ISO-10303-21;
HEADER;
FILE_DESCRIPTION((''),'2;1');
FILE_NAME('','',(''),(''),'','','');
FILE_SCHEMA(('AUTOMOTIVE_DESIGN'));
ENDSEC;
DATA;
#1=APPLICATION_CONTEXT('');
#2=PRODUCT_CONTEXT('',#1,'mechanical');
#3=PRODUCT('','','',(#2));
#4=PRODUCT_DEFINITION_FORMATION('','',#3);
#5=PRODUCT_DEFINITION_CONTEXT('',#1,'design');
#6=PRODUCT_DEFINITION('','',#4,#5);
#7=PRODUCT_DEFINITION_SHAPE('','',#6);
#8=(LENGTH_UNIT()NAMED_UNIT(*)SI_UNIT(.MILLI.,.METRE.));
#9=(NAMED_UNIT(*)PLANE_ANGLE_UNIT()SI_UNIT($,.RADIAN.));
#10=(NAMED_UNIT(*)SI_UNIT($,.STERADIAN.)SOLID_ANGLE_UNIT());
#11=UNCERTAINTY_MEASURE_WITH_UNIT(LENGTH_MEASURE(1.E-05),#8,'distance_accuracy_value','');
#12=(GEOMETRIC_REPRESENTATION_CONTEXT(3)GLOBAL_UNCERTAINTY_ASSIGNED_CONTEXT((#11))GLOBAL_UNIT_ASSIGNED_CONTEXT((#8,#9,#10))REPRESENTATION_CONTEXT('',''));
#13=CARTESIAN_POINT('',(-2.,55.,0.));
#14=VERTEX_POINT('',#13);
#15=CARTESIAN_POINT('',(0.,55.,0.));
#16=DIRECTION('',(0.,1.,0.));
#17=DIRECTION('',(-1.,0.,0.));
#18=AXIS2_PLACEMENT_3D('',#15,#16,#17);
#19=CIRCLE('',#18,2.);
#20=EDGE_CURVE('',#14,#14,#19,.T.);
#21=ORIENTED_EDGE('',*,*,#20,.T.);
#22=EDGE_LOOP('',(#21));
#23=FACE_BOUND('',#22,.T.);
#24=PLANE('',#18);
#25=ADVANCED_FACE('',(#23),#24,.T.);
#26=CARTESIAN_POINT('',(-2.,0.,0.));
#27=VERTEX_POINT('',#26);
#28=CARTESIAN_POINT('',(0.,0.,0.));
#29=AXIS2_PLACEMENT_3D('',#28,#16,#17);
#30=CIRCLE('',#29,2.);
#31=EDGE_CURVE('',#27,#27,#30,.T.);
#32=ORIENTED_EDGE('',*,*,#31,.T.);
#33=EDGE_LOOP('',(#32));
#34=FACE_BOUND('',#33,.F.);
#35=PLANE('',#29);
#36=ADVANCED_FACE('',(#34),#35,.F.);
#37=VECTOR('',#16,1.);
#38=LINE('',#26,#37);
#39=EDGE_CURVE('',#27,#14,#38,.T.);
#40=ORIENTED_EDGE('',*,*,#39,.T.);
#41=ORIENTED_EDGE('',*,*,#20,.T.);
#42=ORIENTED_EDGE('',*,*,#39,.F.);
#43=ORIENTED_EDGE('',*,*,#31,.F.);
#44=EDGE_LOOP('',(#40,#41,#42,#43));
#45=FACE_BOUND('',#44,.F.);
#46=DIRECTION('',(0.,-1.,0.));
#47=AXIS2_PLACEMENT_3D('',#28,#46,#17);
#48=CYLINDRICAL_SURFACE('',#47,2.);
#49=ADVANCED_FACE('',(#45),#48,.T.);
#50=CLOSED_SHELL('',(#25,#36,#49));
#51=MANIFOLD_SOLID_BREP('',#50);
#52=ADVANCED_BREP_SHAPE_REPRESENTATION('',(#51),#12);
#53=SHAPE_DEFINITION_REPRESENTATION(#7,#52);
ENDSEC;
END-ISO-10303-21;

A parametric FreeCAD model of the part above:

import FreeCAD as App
import Part
import Sketcher
Q = App.Units.Quantity

doc = App.newDocument("Part")
body = doc.addObject("PartDesign::Body", "Body")

# Sketch on XZ plane
sketch1 = body.newObject("Sketcher::SketchObject", "Sketch")
sketch1.AttachmentSupport = (doc.getObject("XZ_Plane"), [""])
sketch1.MapMode = "FlatFace"
sketch1.addGeometry(Part.Circle(App.Vector(0, 0, 0), App.Vector(0, 0, 1), 2), False)
sketch1.addConstraint([
    Sketcher.Constraint("Coincident", 0, 3, -1, 1),
    Sketcher.Constraint("Diameter", 0, Q("4 mm")),
])
pad1 = body.newObject("PartDesign::Pad", "Pad")
pad1.Profile = sketch1
pad1.Length = 55
pad1.Reversed = True

doc.recompute()
